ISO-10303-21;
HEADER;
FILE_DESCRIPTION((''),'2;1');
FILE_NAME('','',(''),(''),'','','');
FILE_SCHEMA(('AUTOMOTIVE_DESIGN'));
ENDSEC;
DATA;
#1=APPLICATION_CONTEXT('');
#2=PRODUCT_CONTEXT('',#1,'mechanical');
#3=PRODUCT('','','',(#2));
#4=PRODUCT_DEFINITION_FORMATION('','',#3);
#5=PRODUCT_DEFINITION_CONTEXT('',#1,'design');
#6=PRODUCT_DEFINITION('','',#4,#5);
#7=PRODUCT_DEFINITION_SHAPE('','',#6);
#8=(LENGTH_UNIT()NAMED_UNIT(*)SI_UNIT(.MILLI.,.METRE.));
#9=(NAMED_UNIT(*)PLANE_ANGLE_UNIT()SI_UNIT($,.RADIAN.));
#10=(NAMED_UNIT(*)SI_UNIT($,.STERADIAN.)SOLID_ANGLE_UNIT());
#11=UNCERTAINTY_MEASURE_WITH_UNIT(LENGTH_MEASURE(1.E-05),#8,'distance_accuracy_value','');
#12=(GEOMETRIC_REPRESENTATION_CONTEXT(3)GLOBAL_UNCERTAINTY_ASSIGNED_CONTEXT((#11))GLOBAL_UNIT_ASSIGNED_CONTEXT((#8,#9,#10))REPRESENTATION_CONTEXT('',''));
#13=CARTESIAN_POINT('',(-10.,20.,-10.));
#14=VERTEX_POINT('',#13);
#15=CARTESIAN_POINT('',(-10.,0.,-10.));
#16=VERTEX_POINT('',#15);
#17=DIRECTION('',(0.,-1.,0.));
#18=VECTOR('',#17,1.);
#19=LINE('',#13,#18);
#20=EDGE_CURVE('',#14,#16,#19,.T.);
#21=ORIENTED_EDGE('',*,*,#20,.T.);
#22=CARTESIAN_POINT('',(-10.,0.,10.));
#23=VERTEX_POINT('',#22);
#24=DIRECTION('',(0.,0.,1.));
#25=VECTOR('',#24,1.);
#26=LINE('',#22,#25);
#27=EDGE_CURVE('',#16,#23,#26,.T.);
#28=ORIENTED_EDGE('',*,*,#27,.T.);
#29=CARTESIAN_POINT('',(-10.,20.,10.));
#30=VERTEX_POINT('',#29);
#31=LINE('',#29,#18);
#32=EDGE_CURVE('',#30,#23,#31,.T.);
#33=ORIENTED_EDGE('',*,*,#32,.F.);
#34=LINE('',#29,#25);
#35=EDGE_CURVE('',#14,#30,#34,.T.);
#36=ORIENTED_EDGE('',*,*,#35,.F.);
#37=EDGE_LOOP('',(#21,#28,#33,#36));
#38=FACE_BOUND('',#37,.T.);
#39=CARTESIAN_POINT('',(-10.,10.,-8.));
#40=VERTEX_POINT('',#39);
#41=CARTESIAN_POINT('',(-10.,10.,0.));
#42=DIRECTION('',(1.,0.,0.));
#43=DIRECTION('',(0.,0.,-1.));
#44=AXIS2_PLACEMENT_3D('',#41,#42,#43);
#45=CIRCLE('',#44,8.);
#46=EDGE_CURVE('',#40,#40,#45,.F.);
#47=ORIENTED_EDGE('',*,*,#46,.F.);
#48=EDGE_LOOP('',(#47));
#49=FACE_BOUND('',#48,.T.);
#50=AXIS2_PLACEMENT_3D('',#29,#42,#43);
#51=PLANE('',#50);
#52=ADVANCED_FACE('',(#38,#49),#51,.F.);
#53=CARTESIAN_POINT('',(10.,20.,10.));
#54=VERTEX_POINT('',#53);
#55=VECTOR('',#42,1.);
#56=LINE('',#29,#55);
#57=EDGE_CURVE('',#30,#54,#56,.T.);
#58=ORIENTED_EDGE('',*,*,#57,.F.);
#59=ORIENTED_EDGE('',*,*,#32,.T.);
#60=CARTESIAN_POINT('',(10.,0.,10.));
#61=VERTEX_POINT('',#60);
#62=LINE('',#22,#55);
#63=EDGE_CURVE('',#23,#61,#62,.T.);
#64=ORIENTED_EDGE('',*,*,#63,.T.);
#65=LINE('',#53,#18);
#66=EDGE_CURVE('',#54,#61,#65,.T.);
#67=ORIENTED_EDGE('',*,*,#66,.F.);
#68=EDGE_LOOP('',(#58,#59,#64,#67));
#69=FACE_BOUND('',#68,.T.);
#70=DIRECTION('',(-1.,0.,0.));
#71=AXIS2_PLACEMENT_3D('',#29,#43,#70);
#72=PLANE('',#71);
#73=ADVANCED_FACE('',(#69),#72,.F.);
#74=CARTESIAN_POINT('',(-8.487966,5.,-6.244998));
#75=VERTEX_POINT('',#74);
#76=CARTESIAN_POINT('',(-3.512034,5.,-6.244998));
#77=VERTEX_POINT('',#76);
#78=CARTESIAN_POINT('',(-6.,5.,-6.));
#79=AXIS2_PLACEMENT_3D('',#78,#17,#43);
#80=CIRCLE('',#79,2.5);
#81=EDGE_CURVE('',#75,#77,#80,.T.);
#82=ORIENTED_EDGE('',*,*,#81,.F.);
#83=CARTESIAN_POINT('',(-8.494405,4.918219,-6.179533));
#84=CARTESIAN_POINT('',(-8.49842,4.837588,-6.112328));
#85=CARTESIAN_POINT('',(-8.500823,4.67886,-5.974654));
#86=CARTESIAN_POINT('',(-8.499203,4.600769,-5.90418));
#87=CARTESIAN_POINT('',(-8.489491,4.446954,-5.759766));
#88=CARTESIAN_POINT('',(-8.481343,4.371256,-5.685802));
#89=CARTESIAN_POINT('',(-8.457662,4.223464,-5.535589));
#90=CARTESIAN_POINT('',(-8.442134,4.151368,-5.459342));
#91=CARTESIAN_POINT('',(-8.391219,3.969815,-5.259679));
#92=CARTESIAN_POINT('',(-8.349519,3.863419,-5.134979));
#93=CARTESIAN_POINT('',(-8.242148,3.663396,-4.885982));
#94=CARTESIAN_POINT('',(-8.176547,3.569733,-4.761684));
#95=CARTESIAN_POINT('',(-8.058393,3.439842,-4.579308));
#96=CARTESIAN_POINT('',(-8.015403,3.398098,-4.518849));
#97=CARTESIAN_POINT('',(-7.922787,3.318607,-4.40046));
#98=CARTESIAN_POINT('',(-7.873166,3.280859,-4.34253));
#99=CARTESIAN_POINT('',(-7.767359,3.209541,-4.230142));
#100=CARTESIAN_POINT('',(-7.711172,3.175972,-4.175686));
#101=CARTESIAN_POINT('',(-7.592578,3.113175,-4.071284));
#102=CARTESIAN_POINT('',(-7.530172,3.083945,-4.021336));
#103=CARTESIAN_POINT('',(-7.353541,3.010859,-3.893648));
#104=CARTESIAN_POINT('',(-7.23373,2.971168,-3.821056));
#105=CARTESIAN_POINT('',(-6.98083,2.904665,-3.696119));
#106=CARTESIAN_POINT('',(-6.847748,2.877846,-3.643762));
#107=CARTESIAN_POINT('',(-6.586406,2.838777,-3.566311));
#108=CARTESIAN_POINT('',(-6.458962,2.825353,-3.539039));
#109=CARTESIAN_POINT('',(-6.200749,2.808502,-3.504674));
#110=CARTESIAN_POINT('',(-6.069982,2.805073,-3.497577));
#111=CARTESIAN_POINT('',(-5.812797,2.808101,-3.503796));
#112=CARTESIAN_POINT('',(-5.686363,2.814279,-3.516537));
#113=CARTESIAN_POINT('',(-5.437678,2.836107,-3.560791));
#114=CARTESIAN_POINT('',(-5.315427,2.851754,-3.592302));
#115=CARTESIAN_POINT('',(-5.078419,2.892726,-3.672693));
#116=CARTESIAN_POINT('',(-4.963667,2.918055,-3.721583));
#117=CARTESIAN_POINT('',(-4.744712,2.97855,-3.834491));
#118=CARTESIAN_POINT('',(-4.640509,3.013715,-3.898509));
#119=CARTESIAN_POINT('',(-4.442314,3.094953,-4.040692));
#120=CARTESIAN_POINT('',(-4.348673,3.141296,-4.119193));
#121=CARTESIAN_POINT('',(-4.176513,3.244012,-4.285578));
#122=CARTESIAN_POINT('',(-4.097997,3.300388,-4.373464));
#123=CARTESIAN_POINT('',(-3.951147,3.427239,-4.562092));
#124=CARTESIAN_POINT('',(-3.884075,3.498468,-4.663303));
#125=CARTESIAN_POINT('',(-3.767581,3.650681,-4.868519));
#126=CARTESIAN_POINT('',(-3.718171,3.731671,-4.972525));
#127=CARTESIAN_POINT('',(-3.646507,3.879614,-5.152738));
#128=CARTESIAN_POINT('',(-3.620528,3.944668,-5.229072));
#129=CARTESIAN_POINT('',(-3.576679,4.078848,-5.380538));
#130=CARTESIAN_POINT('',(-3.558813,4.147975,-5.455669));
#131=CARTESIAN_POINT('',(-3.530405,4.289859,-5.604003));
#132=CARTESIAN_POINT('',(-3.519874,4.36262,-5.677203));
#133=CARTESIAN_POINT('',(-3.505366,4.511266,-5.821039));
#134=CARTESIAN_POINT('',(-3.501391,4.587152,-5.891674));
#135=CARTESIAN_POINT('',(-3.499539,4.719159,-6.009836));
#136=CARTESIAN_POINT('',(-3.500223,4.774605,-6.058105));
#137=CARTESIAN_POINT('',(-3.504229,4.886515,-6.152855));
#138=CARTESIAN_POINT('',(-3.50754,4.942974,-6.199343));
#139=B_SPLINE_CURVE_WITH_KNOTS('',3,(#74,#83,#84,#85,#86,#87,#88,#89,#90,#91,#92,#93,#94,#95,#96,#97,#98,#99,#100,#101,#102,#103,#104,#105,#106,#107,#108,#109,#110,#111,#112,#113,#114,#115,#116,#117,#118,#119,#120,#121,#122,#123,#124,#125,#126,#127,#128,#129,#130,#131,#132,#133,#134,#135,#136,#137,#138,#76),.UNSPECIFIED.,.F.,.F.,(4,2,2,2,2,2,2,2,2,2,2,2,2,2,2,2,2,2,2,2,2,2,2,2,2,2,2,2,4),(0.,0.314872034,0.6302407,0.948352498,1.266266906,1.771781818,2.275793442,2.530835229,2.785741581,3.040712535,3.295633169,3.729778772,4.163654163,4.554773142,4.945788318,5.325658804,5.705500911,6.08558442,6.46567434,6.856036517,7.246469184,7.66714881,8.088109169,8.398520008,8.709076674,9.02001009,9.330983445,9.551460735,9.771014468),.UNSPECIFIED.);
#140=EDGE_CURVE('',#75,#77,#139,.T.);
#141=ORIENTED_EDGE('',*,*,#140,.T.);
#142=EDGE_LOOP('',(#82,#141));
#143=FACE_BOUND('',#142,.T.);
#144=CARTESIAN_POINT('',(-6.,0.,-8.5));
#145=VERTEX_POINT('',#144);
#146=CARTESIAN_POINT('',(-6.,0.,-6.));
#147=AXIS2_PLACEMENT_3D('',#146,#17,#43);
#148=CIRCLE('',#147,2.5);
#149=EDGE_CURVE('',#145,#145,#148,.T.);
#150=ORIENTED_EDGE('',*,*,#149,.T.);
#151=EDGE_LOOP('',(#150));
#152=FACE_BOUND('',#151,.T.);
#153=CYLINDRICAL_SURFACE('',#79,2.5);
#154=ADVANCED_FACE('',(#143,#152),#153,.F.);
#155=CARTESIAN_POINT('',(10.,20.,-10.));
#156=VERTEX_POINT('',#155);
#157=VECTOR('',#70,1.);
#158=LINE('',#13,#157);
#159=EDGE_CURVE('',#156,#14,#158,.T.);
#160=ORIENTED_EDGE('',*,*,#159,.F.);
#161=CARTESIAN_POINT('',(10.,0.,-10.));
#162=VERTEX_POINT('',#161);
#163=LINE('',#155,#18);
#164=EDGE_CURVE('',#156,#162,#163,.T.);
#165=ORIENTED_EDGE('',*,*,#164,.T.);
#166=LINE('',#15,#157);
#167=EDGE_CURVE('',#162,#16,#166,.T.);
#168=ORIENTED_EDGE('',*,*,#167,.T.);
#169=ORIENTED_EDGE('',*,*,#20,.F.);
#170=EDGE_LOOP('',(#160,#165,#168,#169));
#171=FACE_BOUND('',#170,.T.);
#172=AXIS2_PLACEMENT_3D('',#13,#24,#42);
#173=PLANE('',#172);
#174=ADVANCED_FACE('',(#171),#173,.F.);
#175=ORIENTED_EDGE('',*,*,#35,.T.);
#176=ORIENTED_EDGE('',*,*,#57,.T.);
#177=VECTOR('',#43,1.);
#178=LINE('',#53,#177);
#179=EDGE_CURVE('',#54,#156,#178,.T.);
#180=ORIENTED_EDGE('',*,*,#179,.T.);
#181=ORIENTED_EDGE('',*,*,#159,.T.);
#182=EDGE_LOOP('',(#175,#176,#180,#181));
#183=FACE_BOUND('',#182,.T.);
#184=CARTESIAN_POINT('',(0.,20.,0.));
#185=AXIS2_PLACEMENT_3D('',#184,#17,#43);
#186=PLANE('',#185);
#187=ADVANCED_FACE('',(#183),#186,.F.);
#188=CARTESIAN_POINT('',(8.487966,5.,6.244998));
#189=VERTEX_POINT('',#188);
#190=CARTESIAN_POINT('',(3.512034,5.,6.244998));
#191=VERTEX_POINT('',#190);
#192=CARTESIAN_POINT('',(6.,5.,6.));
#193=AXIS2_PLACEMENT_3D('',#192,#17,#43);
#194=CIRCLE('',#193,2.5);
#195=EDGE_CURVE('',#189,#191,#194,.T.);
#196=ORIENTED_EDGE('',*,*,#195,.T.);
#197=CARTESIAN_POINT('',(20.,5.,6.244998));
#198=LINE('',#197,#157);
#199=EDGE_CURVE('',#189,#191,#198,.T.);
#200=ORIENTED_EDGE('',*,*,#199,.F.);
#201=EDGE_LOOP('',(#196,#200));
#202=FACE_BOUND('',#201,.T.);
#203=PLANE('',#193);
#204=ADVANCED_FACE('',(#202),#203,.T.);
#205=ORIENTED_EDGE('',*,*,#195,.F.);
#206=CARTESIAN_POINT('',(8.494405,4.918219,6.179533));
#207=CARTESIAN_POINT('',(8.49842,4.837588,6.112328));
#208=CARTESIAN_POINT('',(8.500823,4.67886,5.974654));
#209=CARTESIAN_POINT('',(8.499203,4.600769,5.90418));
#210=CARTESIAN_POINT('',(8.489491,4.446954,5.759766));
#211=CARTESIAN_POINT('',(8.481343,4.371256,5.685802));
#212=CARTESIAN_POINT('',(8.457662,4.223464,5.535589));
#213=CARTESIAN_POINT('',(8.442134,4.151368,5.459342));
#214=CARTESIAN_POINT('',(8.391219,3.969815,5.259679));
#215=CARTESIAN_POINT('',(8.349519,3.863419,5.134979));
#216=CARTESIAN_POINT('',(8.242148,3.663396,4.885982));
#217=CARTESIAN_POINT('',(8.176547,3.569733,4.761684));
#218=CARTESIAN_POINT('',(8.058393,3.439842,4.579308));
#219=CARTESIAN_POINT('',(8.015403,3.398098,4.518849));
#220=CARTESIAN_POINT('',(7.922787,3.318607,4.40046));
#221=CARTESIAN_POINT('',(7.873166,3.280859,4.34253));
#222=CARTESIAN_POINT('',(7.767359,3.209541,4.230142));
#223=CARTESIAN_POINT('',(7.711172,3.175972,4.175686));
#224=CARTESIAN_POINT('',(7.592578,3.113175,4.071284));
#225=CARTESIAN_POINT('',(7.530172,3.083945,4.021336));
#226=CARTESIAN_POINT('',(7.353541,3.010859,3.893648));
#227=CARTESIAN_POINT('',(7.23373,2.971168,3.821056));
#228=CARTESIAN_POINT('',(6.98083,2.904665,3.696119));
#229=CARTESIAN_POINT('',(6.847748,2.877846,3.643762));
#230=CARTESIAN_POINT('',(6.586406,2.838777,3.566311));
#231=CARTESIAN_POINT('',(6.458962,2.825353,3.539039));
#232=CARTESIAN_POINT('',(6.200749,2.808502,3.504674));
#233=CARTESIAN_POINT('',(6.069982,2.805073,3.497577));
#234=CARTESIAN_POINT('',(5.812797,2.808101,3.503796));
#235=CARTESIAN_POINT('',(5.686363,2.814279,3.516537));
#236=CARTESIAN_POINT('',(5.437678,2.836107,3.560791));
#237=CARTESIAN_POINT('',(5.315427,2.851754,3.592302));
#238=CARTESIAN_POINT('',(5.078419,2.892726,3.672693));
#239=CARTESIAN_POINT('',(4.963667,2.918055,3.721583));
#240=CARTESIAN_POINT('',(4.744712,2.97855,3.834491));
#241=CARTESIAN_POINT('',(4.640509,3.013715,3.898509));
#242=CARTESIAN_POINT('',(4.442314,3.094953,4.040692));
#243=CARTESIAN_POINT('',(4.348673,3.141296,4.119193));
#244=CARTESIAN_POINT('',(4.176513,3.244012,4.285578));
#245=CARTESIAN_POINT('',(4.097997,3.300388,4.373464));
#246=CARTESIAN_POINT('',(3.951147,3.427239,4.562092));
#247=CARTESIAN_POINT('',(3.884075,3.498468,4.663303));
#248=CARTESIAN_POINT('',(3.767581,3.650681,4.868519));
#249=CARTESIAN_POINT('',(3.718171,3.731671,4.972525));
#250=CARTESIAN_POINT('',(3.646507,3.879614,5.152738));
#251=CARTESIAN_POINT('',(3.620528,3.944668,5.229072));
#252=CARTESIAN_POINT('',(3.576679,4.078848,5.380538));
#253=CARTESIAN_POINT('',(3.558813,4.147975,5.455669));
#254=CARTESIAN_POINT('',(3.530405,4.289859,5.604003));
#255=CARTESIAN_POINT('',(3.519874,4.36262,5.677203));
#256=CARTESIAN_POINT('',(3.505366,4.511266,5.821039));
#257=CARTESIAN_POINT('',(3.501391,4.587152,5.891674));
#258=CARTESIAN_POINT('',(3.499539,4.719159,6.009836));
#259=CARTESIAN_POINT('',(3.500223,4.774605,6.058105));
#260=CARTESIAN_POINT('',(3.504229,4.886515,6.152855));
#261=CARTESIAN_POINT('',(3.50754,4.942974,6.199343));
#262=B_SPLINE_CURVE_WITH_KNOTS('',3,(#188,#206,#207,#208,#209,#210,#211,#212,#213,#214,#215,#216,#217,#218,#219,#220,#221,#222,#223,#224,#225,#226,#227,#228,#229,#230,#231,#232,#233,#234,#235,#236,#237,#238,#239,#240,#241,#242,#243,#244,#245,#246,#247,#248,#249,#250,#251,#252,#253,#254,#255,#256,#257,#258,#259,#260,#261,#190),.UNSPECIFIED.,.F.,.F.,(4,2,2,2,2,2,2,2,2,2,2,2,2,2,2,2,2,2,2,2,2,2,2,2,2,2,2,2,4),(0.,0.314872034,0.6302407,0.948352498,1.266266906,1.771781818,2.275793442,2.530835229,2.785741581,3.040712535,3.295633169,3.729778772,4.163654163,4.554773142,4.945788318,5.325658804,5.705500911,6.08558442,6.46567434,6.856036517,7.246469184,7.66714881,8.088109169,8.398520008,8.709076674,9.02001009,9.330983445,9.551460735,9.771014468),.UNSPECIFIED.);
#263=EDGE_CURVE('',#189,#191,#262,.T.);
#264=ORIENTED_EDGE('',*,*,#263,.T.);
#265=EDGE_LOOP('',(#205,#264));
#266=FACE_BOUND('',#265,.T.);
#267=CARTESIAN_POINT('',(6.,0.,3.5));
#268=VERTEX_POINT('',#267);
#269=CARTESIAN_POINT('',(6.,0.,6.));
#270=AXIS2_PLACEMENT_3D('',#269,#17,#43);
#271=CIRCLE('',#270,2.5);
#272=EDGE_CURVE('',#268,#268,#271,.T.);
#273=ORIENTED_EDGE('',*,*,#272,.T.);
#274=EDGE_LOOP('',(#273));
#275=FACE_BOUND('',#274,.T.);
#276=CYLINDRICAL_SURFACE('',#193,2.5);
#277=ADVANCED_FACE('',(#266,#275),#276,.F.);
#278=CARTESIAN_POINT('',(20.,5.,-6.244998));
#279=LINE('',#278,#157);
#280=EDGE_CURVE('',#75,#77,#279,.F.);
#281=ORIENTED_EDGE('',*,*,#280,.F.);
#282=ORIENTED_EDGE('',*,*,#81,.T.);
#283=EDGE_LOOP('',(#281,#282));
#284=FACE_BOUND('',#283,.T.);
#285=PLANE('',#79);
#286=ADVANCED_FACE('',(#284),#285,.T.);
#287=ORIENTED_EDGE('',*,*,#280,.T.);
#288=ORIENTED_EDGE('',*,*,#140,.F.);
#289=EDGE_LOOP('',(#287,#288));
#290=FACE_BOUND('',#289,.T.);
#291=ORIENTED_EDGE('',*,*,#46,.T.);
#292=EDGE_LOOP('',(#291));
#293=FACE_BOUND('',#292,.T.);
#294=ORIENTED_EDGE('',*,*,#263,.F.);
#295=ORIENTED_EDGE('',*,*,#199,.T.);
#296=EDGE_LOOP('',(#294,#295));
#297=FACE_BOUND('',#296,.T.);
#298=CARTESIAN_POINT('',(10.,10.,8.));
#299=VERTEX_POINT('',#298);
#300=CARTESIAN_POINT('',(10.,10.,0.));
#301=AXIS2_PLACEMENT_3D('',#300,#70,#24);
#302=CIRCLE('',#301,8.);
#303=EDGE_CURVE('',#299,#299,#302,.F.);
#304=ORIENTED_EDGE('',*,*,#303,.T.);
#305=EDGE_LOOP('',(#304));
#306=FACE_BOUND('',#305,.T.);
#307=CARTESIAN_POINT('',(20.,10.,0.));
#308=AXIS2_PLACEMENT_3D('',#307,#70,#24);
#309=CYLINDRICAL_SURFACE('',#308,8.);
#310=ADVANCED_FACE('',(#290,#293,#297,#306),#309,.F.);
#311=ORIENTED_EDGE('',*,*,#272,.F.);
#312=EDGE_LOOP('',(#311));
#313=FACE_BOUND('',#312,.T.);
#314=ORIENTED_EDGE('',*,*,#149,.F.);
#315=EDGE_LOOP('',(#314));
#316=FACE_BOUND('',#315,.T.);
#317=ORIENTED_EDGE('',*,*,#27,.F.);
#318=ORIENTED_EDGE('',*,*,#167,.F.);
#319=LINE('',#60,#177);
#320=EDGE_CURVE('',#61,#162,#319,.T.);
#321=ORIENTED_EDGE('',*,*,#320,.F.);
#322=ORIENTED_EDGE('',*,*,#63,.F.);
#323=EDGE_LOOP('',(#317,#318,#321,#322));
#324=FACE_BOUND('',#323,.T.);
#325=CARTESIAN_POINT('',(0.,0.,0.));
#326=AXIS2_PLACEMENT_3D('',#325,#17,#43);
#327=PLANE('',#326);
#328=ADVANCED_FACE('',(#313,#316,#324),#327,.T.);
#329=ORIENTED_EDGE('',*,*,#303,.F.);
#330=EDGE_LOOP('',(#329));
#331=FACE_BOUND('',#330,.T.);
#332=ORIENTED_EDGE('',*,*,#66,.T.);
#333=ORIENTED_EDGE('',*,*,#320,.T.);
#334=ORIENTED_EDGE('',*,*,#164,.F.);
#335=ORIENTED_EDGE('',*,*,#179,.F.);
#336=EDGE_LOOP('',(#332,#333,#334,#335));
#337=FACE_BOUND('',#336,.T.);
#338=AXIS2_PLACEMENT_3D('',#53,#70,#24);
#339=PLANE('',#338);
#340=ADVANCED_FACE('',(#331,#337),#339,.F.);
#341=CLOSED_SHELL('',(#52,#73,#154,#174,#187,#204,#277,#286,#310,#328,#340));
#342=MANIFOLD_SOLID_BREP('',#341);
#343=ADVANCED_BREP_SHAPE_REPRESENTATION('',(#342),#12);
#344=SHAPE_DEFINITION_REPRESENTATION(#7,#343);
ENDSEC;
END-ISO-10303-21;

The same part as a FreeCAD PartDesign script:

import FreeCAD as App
import Part
import Sketcher

V = App.Vector

doc = App.newDocument("Part")
body = doc.addObject("PartDesign::Body", "Body")

# Sketch on XZ plane
sketch1 = doc.addObject("Sketcher::SketchObject", "Sketch")
body.addObject(sketch1)
sketch1.AttachmentSupport = (doc.XZ_Plane, [""])
sketch1.MapMode = "FlatFace"
sketch1.addGeometry([
    Part.LineSegment(V(-10, -10, 0), V(-10, 10, 0)),
    Part.LineSegment(V(-10, 10, 0), V(10, 10, 0)),
    Part.LineSegment(V(10, 10, 0), V(10, -10, 0)),
    Part.LineSegment(V(10, -10, 0), V(-10, -10, 0)),
], False)
sketch1.addConstraint([
    Sketcher.Constraint("Coincident", 0, 2, 1, 1),
    Sketcher.Constraint("Coincident", 1, 2, 2, 1),
    Sketcher.Constraint("Coincident", 2, 2, 3, 1),
    Sketcher.Constraint("Coincident", 3, 2, 0, 1),
    Sketcher.Constraint("Vertical", 0),
    Sketcher.Constraint("Horizontal", 1),
    Sketcher.Constraint("Vertical", 2),
    Sketcher.Constraint("Horizontal", 3),
    Sketcher.Constraint("Symmetric", 0, 2, 2, 2, -1, 1),
    Sketcher.Constraint("Equal", 3, 0),
    Sketcher.Constraint("DistanceX", 1, 1, 1, 2, 20.0),
])
pad1 = doc.addObject("PartDesign::Pad", "Pad")
body.addObject(pad1)
pad1.Profile = sketch1
pad1.Length = 20
pad1.Reversed = True

# Sketch on YZ plane
sketch2 = doc.addObject("Sketcher::SketchObject", "Sketch001")
body.addObject(sketch2)
sketch2.AttachmentSupport = (doc.YZ_Plane, [""])
sketch2.MapMode = "FlatFace"
sketch2.addGeometry(Part.Circle(V(10, 0, 0), V(0, 0, 1), 8), False)
sketch2.addConstraint([
    Sketcher.Constraint("PointOnObject", 0, 3, -1),
    Sketcher.Constraint("Diameter", 0, 16.0),
    Sketcher.Constraint("DistanceX", -1, 1, 0, 3, 10.0),
])
pocket1 = doc.addObject("PartDesign::Pocket", "Pocket")
body.addObject(pocket1)
pocket1.Profile = sketch2
pocket1.Type = "ThroughAll"
pocket1.Midplane = True

# Sketch on XZ plane
sketch3 = doc.addObject("Sketcher::SketchObject", "Sketch002")
body.addObject(sketch3)
sketch3.AttachmentSupport = (doc.XZ_Plane, [""])
sketch3.MapMode = "FlatFace"
sketch3.addGeometry([
    Part.Circle(V(6, 6, 0), V(0, 0, 1), 2.5),
    Part.Circle(V(-6, -6, 0), V(0, 0, 1), 2.5),
], False)
sketch3.addConstraint([
    Sketcher.Constraint("Equal", 0, 1),
    Sketcher.Constraint("Symmetric", 0, 3, 1, 3, -1, 1),
    Sketcher.Constraint("Diameter", 0, 5.0),
    Sketcher.Constraint("DistanceX", -1, 1, 0, 3, 6.0),
    Sketcher.Constraint("DistanceY", -1, 1, 0, 3, 6.0),
])
pocket2 = doc.addObject("PartDesign::Pocket", "Pocket001")
body.addObject(pocket2)
pocket2.Profile = sketch3
pocket2.Length = 5

doc.recompute()
